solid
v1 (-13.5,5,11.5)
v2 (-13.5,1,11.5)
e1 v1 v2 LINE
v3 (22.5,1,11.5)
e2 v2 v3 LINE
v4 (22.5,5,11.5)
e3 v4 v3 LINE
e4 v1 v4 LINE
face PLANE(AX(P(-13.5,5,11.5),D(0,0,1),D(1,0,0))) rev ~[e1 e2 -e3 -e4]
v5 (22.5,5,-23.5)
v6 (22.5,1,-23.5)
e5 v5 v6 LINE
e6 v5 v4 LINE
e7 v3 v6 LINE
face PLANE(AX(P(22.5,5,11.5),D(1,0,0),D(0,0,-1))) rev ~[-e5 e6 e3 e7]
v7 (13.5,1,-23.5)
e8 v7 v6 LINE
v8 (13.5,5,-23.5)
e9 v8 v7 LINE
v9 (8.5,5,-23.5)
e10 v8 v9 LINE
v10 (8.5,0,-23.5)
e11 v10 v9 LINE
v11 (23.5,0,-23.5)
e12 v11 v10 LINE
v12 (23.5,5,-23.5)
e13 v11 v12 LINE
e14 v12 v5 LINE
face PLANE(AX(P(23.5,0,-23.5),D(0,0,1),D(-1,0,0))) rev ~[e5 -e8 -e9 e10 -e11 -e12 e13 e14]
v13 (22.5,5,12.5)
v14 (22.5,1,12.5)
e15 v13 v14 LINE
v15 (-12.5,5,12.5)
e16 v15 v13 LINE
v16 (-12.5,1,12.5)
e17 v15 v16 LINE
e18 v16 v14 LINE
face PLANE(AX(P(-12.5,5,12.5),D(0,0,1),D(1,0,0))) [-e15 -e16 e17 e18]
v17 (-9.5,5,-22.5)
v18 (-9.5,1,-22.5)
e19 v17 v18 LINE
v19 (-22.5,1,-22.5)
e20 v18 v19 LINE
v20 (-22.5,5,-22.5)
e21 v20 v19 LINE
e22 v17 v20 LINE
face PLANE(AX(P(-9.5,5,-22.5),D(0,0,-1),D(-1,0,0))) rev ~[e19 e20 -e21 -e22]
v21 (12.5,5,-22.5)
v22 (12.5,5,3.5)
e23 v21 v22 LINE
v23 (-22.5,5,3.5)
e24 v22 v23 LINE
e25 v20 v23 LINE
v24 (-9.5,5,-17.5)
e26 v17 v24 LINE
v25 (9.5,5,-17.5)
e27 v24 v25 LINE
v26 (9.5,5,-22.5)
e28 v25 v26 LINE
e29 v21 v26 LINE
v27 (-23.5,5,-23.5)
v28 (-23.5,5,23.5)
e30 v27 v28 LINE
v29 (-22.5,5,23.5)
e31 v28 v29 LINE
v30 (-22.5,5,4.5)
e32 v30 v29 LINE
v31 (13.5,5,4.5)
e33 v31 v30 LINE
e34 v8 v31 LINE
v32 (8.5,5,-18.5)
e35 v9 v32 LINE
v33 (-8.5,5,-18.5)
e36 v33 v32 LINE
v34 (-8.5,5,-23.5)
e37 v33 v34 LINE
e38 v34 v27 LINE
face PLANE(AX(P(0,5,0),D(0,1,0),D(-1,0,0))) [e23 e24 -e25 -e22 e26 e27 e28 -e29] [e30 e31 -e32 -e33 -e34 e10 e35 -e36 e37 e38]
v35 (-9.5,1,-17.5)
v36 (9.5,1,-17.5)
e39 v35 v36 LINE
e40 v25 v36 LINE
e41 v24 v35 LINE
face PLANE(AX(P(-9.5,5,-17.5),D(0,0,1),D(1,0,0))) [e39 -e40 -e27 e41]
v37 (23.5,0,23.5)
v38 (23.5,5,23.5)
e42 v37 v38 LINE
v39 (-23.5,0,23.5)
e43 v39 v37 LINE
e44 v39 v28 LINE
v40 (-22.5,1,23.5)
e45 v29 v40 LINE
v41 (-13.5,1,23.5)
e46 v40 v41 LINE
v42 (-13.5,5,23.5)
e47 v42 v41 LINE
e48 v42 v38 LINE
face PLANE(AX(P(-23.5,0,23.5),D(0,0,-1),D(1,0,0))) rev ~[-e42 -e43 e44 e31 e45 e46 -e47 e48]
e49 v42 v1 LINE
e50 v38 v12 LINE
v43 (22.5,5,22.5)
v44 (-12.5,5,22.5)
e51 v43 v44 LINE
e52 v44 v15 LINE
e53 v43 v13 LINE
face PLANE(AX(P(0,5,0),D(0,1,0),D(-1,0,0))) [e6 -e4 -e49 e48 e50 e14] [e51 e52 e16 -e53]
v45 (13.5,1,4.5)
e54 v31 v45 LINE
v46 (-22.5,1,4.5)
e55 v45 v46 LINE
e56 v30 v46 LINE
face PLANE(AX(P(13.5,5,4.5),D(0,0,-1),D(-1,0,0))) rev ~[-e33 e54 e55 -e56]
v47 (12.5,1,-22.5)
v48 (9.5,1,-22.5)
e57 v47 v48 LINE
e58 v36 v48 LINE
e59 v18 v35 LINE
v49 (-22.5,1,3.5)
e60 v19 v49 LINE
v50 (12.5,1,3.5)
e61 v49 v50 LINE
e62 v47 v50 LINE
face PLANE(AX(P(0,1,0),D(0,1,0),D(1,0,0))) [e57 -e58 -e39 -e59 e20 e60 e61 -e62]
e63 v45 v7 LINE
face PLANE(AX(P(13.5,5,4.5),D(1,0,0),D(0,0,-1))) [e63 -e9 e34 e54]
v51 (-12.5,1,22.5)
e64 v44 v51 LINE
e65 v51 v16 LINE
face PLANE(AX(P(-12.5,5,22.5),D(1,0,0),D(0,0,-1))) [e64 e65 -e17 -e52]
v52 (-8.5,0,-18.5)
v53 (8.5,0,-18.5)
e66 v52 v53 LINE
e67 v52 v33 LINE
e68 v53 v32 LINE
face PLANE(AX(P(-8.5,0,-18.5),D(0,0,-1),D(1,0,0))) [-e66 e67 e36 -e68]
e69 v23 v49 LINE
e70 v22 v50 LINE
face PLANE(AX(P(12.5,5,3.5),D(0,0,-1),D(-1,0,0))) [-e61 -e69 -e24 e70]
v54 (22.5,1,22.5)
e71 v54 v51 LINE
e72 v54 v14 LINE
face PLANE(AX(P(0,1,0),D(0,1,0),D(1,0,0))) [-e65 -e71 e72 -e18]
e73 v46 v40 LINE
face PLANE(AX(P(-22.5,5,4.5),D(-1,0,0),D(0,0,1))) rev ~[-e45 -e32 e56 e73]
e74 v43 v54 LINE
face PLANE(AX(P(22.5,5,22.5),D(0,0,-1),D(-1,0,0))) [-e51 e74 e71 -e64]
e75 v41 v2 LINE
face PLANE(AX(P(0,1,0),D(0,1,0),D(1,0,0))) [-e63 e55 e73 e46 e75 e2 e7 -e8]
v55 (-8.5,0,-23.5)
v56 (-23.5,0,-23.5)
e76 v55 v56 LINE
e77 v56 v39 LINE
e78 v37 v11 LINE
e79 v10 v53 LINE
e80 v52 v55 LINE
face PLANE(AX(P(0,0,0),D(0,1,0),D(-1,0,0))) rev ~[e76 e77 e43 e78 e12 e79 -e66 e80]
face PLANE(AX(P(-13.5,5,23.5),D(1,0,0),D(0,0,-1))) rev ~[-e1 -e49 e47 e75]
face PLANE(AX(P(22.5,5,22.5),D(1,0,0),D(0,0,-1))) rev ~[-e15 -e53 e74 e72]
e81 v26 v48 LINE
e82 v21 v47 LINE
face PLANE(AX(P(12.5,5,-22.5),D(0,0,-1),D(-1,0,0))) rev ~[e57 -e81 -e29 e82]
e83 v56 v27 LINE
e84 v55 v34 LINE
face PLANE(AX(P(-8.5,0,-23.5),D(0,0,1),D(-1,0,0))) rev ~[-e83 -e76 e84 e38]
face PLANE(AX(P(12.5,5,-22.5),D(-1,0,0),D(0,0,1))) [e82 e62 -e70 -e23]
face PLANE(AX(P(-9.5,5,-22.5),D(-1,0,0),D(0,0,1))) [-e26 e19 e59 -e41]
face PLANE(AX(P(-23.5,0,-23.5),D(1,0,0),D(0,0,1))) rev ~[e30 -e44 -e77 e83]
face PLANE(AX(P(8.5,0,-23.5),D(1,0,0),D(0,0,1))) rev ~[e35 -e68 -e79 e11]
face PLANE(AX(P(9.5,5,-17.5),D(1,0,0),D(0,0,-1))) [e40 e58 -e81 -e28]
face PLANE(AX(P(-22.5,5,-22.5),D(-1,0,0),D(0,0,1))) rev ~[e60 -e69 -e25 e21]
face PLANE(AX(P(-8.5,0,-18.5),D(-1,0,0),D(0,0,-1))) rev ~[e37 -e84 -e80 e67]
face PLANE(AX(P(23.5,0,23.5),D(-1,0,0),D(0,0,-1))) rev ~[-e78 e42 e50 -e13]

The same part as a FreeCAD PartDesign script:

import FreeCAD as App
import Part
import Sketcher
from FreeCAD import Vector
Q = App.Units.Quantity

doc = App.newDocument("Part")
params = doc.addObject("Spreadsheet::Sheet", "Params")
for row, (alias, value) in enumerate([
    ("sketch1_width", "47 mm"),
    ("sketch1_width2", "15 mm"),
    ("sketch1_height", "5 mm"),
    ("pad1_length", "5 mm"),
    ("sketch2_width", "9 mm"),
    ("sketch2_height", "5 mm"),
    ("sketch2_width2", "3 mm"),
    ("pocket1_length", "4 mm"),
], start=1):
    params.set(f"A{row}", alias)
    params.set(f"B{row}", "=" + value)
    params.setAlias(f"B{row}", alias)

body = doc.addObject("PartDesign::Body", "Body")

sketch1 = doc.addObject("Sketcher::SketchObject", "Sketch")
body.addObject(sketch1)
sketch1.AttachmentSupport = (doc.XZ_Plane, [""])
sketch1.MapMode = "FlatFace"
sketch1.addGeometry(Part.LineSegment(Vector(-24, -24, 0), Vector(-24, 24, 0)), False)
sketch1.addGeometry(Part.LineSegment(Vector(-24, 24, 0), Vector(24, 24, 0)), False)
sketch1.addGeometry(Part.LineSegment(Vector(24, 24, 0), Vector(24, -24, 0)), False)
sketch1.addGeometry(Part.LineSegment(Vector(24, -24, 0), Vector(8, -24, 0)), False)
sketch1.addGeometry(Part.LineSegment(Vector(8, -24, 0), Vector(8, -18, 0)), False)
sketch1.addGeometry(Part.LineSegment(Vector(8, -18, 0), Vector(-8, -18, 0)), False)
sketch1.addGeometry(Part.LineSegment(Vector(-8, -18, 0), Vector(-8, -24, 0)), False)
sketch1.addGeometry(Part.LineSegment(Vector(-8, -24, 0), Vector(-24, -24, 0)), False)
sketch1.addConstraint(Sketcher.Constraint("Coincident", 0, 2, 1, 1))
sketch1.addConstraint(Sketcher.Constraint("Coincident", 1, 2, 2, 1))
sketch1.addConstraint(Sketcher.Constraint("Coincident", 2, 2, 3, 1))
sketch1.addConstraint(Sketcher.Constraint("Coincident", 3, 2, 4, 1))
sketch1.addConstraint(Sketcher.Constraint("Coincident", 4, 2, 5, 1))
sketch1.addConstraint(Sketcher.Constraint("Coincident", 5, 2, 6, 1))
sketch1.addConstraint(Sketcher.Constraint("Coincident", 6, 2, 7, 1))
sketch1.addConstraint(Sketcher.Constraint("Coincident", 7, 2, 0, 1))
sketch1.addConstraint(Sketcher.Constraint("Vertical", 0))
sketch1.addConstraint(Sketcher.Constraint("Horizontal", 1))
sketch1.addConstraint(Sketcher.Constraint("Vertical", 2))
sketch1.addConstraint(Sketcher.Constraint("Horizontal", 3))
sketch1.addConstraint(Sketcher.Constraint("Vertical", 4))
sketch1.addConstraint(Sketcher.Constraint("Horizontal", 5))
sketch1.addConstraint(Sketcher.Constraint("Vertical", 6))
sketch1.addConstraint(Sketcher.Constraint("Horizontal", 7))
sketch1.addConstraint(Sketcher.Constraint("Symmetric", 0, 2, 2, 2, -1, 1))
sketch1.addConstraint(Sketcher.Constraint("Symmetric", 3, 2, 6, 2, -2))
sketch1.addConstraint(Sketcher.Constraint("Equal", 1, 0))
sketch1.addConstraint(Sketcher.Constraint("DistanceX", 1, 1, 1, 2, Q("47 mm")))
sketch1.addConstraint(Sketcher.Constraint("DistanceX", 3, 2, 3, 1, Q("15 mm")))
sketch1.addConstraint(Sketcher.Constraint("DistanceY", 4, 1, 4, 2, Q("5 mm")))
sketch1.setExpression("Constraints[19]", "Params.sketch1_width")
sketch1.setExpression("Constraints[20]", "Params.sketch1_width2")
sketch1.setExpression("Constraints[21]", "Params.sketch1_height")
pad1 = doc.addObject("PartDesign::Pad", "Pad")
body.addObject(pad1)
pad1.Profile = sketch1
pad1.setExpression("Length", "Params.pad1_length")
pad1.Reversed = True

sketch2 = doc.addObject("Sketcher::SketchObject", "Sketch001")
body.addObject(sketch2)
sketch2.AttachmentSupport = (doc.XZ_Plane, [""])
sketch2.MapMode = "FlatFace"
sketch2.AttachmentOffset = App.Placement(Vector(0, 0, -5), App.Rotation())
sketch2.addGeometry(Part.LineSegment(Vector(-12.5, 22.5, 0), Vector(22.5, 22.5, 0)), False)
sketch2.addGeometry(Part.LineSegment(Vector(22.5, 22.5, 0), Vector(22.5, 12.5, 0)), False)
sketch2.addGeometry(Part.LineSegment(Vector(22.5, 12.5, 0), Vector(-12.5, 12.5, 0)), False)
sketch2.addGeometry(Part.LineSegment(Vector(-12.5, 12.5, 0), Vector(-12.5, 22.5, 0)), False)
sketch2.addGeometry(Part.LineSegment(Vector(-13.5, 11.5, 0), Vector(22.5, 11.5, 0)), False)
sketch2.addGeometry(Part.LineSegment(Vector(22.5, 11.5, 0), Vector(22.5, -23.5, 0)), False)
sketch2.addGeometry(Part.LineSegment(Vector(22.5, -23.5, 0), Vector(13.5, -23.5, 0)), False)
sketch2.addGeometry(Part.LineSegment(Vector(13.5, -23.5, 0), Vector(13.5, 4.5, 0)), False)
sketch2.addGeometry(Part.LineSegment(Vector(13.5, 4.5, 0), Vector(-22.5, 4.5, 0)), False)
sketch2.addGeometry(Part.LineSegment(Vector(-22.5, 4.5, 0), Vector(-22.5, 23.5, 0)), False)
sketch2.addGeometry(Part.LineSegment(Vector(-22.5, 23.5, 0), Vector(-13.5, 23.5, 0)), False)
sketch2.addGeometry(Part.LineSegment(Vector(-13.5, 23.5, 0), Vector(-13.5, 11.5, 0)), False)
sketch2.addGeometry(Part.LineSegment(Vector(12.5, 3.5, 0), Vector(12.5, -22.5, 0)), False)
sketch2.addGeometry(Part.LineSegment(Vector(12.5, -22.5, 0), Vector(9.5, -22.5, 0)), False)
sketch2.addGeometry(Part.LineSegment(Vector(9.5, -22.5, 0), Vector(9.5, -17.5, 0)), False)
sketch2.addGeometry(Part.LineSegment(Vector(9.5, -17.5, 0), Vector(-9.5, -17.5, 0)), False)
sketch2.addGeometry(Part.LineSegment(Vector(-9.5, -17.5, 0), Vector(-9.5, -22.5, 0)), False)
sketch2.addGeometry(Part.LineSegment(Vector(-9.5, -22.5, 0), Vector(-22.5, -22.5, 0)), False)
sketch2.addGeometry(Part.LineSegment(Vector(-22.5, -22.5, 0), Vector(-22.5, 3.5, 0)), False)
sketch2.addGeometry(Part.LineSegment(Vector(-22.5, 3.5, 0), Vector(12.5, 3.5, 0)), False)
sketch2.addConstraint(Sketcher.Constraint("Coincident", 0, 2, 1, 1))
sketch2.addConstraint(Sketcher.Constraint("Coincident", 1, 2, 2, 1))
sketch2.addConstraint(Sketcher.Constraint("Coincident", 2, 2, 3, 1))
sketch2.addConstraint(Sketcher.Constraint("Coincident", 3, 2, 0, 1))
sketch2.addConstraint(Sketcher.Constraint("Coincident", 4, 2, 5, 1))
sketch2.addConstraint(Sketcher.Constraint("Coincident", 5, 2, 6, 1))
sketch2.addConstraint(Sketcher.Constraint("Coincident", 6, 2, 7, 1))
sketch2.addConstraint(Sketcher.Constraint("Coincident", 7, 2, 8, 1))
sketch2.addConstraint(Sketcher.Constraint("Coincident", 8, 2, 9, 1))
sketch2.addConstraint(Sketcher.Constraint("Coincident", 9, 2, 10, 1))
sketch2.addConstraint(Sketcher.Constraint("Coincident", 10, 2, 11, 1))
sketch2.addConstraint(Sketcher.Constraint("Coincident", 11, 2, 4, 1))
sketch2.addConstraint(Sketcher.Constraint("Coincident", 12, 2, 13, 1))
sketch2.addConstraint(Sketcher.Constraint("Coincident", 13, 2, 14, 1))
sketch2.addConstraint(Sketcher.Constraint("Coincident", 14, 2, 15, 1))
sketch2.addConstraint(Sketcher.Constraint("Coincident", 15, 2, 16, 1))
sketch2.addConstraint(Sketcher.Constraint("Coincident", 16, 2, 17, 1))
sketch2.addConstraint(Sketcher.Constraint("Coincident", 17, 2, 18, 1))
sketch2.addConstraint(Sketcher.Constraint("Coincident", 18, 2, 19, 1))
sketch2.addConstraint(Sketcher.Constraint("Coincident", 19, 2, 12, 1))
sketch2.addConstraint(Sketcher.Constraint("Horizontal", 0))
sketch2.addConstraint(Sketcher.Constraint("Vertical", 1))
sketch2.addConstraint(Sketcher.Constraint("Horizontal", 2))
sketch2.addConstraint(Sketcher.Constraint("Vertical", 3))
sketch2.addConstraint(Sketcher.Constraint("Horizontal", 4))
sketch2.addConstraint(Sketcher.Constraint("Vertical", 5))
sketch2.addConstraint(Sketcher.Constraint("Horizontal", 6))
sketch2.addConstraint(Sketcher.Constraint("Vertical", 7))
sketch2.addConstraint(Sketcher.Constraint("Horizontal", 8))
sketch2.addConstraint(Sketcher.Constraint("Vertical", 9))
sketch2.addConstraint(Sketcher.Constraint("Horizontal", 10))
sketch2.addConstraint(Sketcher.Constraint("Vertical", 11))
sketch2.addConstraint(Sketcher.Constraint("Vertical", 12))
sketch2.addConstraint(Sketcher.Constraint("Horizontal", 13))
sketch2.addConstraint(Sketcher.Constraint("Vertical", 14))
sketch2.addConstraint(Sketcher.Constraint("Horizontal", 15))
sketch2.addConstraint(Sketcher.Constraint("Vertical", 16))
sketch2.addConstraint(Sketcher.Constraint("Horizontal", 17))
sketch2.addConstraint(Sketcher.Constraint("Vertical", 18))
sketch2.addConstraint(Sketcher.Constraint("Horizontal", 19))
sketch2.addConstraint(Sketcher.Constraint("Symmetric", 5, 2, 9, 2, -1, 1))
sketch2.addConstraint(Sketcher.Constraint("Symmetric", 3, 2, 12, 2, -1, 1))
sketch2.addConstraint(Sketcher.Constraint("Symmetric", 0, 2, 17, 2, -1, 1))
sketch2.addConstraint(Sketcher.Constraint("Vertical", 1, 2, 4, 2))
sketch2.addConstraint(Sketcher.Constraint("Equal", 4, 8))
sketch2.addConstraint(Sketcher.Constraint("Equal", 19, 5))
sketch2.addConstraint(Sketcher.Constraint("Equal", 15, 9))
sketch2.addConstraint(Sketcher.Constraint("DistanceX", 6, 2, 6, 1, Q("9 mm")))
sketch2.addConstraint(Sketcher.Constraint("DistanceY", 14, 1, 14, 2, Q("5 mm")))
sketch2.addConstraint(Sketcher.Constraint("DistanceY", 4, 2, 1, 2, Q("1 mm")))
sketch2.addConstraint(Sketcher.Constraint("DistanceY", 4, 2, 0, 2, Q("11 mm")))
sketch2.addConstraint(Sketcher.Constraint("DistanceY", 7, 2, 0, 2, Q("18 mm")))
sketch2.addConstraint(Sketcher.Constraint("DistanceX", 8, 2, 4, 2, Q("45 mm")))
sketch2.addConstraint(Sketcher.Constraint("DistanceY", 3, 2, 9, 2, Q("1 mm")))
sketch2.addConstraint(Sketcher.Constraint("DistanceX", 10, 2, 3, 2, Q("1 mm")))
sketch2.addConstraint(Sketcher.Constraint("DistanceY", 18, 2, 8, 2, Q("1 mm")))
sketch2.addConstraint(Sketcher.Constraint("DistanceX", 13, 2, 13, 1, Q("3 mm")))
sketch2.setExpression("Constraints[47]", "Params.sketch2_width")
sketch2.setExpression("Constraints[48]", "Params.sketch2_height")
sketch2.setExpression("Constraints[56]", "Params.sketch2_width2")
pocket1 = doc.addObject("PartDesign::Pocket", "Pocket")
body.addObject(pocket1)
pocket1.Profile = sketch2
pocket1.setExpression("Length", "Params.pocket1_length")
pocket1.Reversed = True

doc.recompute()
